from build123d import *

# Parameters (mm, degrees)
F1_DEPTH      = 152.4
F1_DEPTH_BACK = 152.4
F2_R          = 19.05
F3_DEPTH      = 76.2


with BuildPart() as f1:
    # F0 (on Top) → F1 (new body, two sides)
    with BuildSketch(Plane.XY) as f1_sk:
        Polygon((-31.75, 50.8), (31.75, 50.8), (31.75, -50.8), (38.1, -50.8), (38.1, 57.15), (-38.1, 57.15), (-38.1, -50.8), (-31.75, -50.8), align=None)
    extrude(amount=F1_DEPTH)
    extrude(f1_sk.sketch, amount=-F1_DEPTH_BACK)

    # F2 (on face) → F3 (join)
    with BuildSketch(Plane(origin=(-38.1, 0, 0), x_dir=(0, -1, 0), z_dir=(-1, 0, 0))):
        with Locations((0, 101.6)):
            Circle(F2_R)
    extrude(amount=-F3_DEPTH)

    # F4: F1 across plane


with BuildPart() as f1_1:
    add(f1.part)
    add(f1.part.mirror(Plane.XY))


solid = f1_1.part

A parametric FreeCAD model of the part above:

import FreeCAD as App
import Part
import Sketcher
Q = App.Units.Quantity

doc = App.newDocument("Part")
body = doc.addObject("PartDesign::Body", "Body")

sketch1 = doc.addObject("Sketcher::SketchObject", "Sketch")
body.addObject(sketch1)
sketch1.AttachmentSupport = (doc.XY_Plane, [""])
sketch1.MapMode = "FlatFace"
sketch1.addGeometry(Part.LineSegment(App.Vector(-32, 51, 0), App.Vector(32, 51, 0)), False)
sketch1.addGeometry(Part.LineSegment(App.Vector(32, 51, 0), App.Vector(32, -51, 0)), False)
sketch1.addGeometry(Part.LineSegment(App.Vector(32, -51, 0), App.Vector(38, -51, 0)), False)
sketch1.addGeometry(Part.LineSegment(App.Vector(38, -51, 0), App.Vector(38, 57, 0)), False)
sketch1.addGeometry(Part.LineSegment(App.Vector(38, 57, 0), App.Vector(-38, 57, 0)), False)
sketch1.addGeometry(Part.LineSegment(App.Vector(-38, 57, 0), App.Vector(-38, -51, 0)), False)
sketch1.addGeometry(Part.LineSegment(App.Vector(-38, -51, 0), App.Vector(-32, -51, 0)), False)
sketch1.addGeometry(Part.LineSegment(App.Vector(-32, -51, 0), App.Vector(-32, 51, 0)), False)
sketch1.addConstraint(Sketcher.Constraint("Coincident", 0, 2, 1, 1))
sketch1.addConstraint(Sketcher.Constraint("Coincident", 1, 2, 2, 1))
sketch1.addConstraint(Sketcher.Constraint("Coincident", 2, 2, 3, 1))
sketch1.addConstraint(Sketcher.Constraint("Coincident", 3, 2, 4, 1))
sketch1.addConstraint(Sketcher.Constraint("Coincident", 4, 2, 5, 1))
sketch1.addConstraint(Sketcher.Constraint("Coincident", 5, 2, 6, 1))
sketch1.addConstraint(Sketcher.Constraint("Coincident", 6, 2, 7, 1))
sketch1.addConstraint(Sketcher.Constraint("Coincident", 7, 2, 0, 1))
sketch1.addConstraint(Sketcher.Constraint("Horizontal", 0))
sketch1.addConstraint(Sketcher.Constraint("Vertical", 1))
sketch1.addConstraint(Sketcher.Constraint("Horizontal", 2))
sketch1.addConstraint(Sketcher.Constraint("Vertical", 3))
sketch1.addConstraint(Sketcher.Constraint("Horizontal", 4))
sketch1.addConstraint(Sketcher.Constraint("Vertical", 5))
sketch1.addConstraint(Sketcher.Constraint("Horizontal", 6))
sketch1.addConstraint(Sketcher.Constraint("Vertical", 7))
sketch1.addConstraint(Sketcher.Constraint("Symmetric", 0, 2, 6, 2, -1, 1))
sketch1.addConstraint(Sketcher.Constraint("Symmetric", 2, 2, 5, 2, -2))
sketch1.addConstraint(Sketcher.Constraint("DistanceX", 4, 2, 4, 1, Q("3 in")))
sketch1.addConstraint(Sketcher.Constraint("DistanceY", 1, 2, 1, 1, Q("4 in")))
sketch1.addConstraint(Sketcher.Constraint("DistanceX", 0, 1, 0, 2, Q("2.5 in")))
sketch1.addConstraint(Sketcher.Constraint("DistanceY", 3, 1, 3, 2, Q("4.25 in")))
pad1 = doc.addObject("PartDesign::Pad", "Pad")
body.addObject(pad1)
pad1.Profile = sketch1
pad1.Type = "TwoLengths"
pad1.Length = Q("6 in")
pad1.Length2 = Q("6 in")

sketch2 = doc.addObject("Sketcher::SketchObject", "Sketch001")
body.addObject(sketch2)
sketch2.AttachmentSupport = (doc.YZ_Plane, [""])
sketch2.MapMode = "FlatFace"
sketch2.AttachmentOffset = App.Placement(App.Vector(0, 0, -1.5 * 25.4), App.Rotation())
sketch2.addGeometry(Part.Circle(App.Vector(0, 102, 0), App.Vector(0, 0, 1), 19), False)
sketch2.addConstraint(Sketcher.Constraint("PointOnObject", 0, 3, -2))
sketch2.addConstraint(Sketcher.Constraint("Diameter", 0, Q("1.5 in")))
sketch2.addConstraint(Sketcher.Constraint("DistanceY", -1, 1, 0, 3, Q("4 in")))
pad2 = doc.addObject("PartDesign::Pad", "Pad001")
body.addObject(pad2)
pad2.Profile = sketch2
pad2.Length = Q("3 in")
body2 = doc.addObject("PartDesign::Body", "Body001")
doc.recompute()

body2.BaseFeature = body
doc.recompute()

mirroring = doc.addObject("Part::Mirroring", "Mirroring")
mirroring.Source = body
mirroring.Base = App.Vector(0, 0, 0)
mirroring.Normal = App.Vector(0, 0, 1)
body3 = doc.addObject("PartDesign::Body", "Body002")
body3.BaseFeature = mirroring
boolean = doc.addObject("PartDesign::Boolean", "Boolean")
body2.addObject(boolean)
boolean.Type = "Fuse"
boolean.addObjects([body3])
doc.recompute()
mirroring.Visibility = False

doc.recompute()
